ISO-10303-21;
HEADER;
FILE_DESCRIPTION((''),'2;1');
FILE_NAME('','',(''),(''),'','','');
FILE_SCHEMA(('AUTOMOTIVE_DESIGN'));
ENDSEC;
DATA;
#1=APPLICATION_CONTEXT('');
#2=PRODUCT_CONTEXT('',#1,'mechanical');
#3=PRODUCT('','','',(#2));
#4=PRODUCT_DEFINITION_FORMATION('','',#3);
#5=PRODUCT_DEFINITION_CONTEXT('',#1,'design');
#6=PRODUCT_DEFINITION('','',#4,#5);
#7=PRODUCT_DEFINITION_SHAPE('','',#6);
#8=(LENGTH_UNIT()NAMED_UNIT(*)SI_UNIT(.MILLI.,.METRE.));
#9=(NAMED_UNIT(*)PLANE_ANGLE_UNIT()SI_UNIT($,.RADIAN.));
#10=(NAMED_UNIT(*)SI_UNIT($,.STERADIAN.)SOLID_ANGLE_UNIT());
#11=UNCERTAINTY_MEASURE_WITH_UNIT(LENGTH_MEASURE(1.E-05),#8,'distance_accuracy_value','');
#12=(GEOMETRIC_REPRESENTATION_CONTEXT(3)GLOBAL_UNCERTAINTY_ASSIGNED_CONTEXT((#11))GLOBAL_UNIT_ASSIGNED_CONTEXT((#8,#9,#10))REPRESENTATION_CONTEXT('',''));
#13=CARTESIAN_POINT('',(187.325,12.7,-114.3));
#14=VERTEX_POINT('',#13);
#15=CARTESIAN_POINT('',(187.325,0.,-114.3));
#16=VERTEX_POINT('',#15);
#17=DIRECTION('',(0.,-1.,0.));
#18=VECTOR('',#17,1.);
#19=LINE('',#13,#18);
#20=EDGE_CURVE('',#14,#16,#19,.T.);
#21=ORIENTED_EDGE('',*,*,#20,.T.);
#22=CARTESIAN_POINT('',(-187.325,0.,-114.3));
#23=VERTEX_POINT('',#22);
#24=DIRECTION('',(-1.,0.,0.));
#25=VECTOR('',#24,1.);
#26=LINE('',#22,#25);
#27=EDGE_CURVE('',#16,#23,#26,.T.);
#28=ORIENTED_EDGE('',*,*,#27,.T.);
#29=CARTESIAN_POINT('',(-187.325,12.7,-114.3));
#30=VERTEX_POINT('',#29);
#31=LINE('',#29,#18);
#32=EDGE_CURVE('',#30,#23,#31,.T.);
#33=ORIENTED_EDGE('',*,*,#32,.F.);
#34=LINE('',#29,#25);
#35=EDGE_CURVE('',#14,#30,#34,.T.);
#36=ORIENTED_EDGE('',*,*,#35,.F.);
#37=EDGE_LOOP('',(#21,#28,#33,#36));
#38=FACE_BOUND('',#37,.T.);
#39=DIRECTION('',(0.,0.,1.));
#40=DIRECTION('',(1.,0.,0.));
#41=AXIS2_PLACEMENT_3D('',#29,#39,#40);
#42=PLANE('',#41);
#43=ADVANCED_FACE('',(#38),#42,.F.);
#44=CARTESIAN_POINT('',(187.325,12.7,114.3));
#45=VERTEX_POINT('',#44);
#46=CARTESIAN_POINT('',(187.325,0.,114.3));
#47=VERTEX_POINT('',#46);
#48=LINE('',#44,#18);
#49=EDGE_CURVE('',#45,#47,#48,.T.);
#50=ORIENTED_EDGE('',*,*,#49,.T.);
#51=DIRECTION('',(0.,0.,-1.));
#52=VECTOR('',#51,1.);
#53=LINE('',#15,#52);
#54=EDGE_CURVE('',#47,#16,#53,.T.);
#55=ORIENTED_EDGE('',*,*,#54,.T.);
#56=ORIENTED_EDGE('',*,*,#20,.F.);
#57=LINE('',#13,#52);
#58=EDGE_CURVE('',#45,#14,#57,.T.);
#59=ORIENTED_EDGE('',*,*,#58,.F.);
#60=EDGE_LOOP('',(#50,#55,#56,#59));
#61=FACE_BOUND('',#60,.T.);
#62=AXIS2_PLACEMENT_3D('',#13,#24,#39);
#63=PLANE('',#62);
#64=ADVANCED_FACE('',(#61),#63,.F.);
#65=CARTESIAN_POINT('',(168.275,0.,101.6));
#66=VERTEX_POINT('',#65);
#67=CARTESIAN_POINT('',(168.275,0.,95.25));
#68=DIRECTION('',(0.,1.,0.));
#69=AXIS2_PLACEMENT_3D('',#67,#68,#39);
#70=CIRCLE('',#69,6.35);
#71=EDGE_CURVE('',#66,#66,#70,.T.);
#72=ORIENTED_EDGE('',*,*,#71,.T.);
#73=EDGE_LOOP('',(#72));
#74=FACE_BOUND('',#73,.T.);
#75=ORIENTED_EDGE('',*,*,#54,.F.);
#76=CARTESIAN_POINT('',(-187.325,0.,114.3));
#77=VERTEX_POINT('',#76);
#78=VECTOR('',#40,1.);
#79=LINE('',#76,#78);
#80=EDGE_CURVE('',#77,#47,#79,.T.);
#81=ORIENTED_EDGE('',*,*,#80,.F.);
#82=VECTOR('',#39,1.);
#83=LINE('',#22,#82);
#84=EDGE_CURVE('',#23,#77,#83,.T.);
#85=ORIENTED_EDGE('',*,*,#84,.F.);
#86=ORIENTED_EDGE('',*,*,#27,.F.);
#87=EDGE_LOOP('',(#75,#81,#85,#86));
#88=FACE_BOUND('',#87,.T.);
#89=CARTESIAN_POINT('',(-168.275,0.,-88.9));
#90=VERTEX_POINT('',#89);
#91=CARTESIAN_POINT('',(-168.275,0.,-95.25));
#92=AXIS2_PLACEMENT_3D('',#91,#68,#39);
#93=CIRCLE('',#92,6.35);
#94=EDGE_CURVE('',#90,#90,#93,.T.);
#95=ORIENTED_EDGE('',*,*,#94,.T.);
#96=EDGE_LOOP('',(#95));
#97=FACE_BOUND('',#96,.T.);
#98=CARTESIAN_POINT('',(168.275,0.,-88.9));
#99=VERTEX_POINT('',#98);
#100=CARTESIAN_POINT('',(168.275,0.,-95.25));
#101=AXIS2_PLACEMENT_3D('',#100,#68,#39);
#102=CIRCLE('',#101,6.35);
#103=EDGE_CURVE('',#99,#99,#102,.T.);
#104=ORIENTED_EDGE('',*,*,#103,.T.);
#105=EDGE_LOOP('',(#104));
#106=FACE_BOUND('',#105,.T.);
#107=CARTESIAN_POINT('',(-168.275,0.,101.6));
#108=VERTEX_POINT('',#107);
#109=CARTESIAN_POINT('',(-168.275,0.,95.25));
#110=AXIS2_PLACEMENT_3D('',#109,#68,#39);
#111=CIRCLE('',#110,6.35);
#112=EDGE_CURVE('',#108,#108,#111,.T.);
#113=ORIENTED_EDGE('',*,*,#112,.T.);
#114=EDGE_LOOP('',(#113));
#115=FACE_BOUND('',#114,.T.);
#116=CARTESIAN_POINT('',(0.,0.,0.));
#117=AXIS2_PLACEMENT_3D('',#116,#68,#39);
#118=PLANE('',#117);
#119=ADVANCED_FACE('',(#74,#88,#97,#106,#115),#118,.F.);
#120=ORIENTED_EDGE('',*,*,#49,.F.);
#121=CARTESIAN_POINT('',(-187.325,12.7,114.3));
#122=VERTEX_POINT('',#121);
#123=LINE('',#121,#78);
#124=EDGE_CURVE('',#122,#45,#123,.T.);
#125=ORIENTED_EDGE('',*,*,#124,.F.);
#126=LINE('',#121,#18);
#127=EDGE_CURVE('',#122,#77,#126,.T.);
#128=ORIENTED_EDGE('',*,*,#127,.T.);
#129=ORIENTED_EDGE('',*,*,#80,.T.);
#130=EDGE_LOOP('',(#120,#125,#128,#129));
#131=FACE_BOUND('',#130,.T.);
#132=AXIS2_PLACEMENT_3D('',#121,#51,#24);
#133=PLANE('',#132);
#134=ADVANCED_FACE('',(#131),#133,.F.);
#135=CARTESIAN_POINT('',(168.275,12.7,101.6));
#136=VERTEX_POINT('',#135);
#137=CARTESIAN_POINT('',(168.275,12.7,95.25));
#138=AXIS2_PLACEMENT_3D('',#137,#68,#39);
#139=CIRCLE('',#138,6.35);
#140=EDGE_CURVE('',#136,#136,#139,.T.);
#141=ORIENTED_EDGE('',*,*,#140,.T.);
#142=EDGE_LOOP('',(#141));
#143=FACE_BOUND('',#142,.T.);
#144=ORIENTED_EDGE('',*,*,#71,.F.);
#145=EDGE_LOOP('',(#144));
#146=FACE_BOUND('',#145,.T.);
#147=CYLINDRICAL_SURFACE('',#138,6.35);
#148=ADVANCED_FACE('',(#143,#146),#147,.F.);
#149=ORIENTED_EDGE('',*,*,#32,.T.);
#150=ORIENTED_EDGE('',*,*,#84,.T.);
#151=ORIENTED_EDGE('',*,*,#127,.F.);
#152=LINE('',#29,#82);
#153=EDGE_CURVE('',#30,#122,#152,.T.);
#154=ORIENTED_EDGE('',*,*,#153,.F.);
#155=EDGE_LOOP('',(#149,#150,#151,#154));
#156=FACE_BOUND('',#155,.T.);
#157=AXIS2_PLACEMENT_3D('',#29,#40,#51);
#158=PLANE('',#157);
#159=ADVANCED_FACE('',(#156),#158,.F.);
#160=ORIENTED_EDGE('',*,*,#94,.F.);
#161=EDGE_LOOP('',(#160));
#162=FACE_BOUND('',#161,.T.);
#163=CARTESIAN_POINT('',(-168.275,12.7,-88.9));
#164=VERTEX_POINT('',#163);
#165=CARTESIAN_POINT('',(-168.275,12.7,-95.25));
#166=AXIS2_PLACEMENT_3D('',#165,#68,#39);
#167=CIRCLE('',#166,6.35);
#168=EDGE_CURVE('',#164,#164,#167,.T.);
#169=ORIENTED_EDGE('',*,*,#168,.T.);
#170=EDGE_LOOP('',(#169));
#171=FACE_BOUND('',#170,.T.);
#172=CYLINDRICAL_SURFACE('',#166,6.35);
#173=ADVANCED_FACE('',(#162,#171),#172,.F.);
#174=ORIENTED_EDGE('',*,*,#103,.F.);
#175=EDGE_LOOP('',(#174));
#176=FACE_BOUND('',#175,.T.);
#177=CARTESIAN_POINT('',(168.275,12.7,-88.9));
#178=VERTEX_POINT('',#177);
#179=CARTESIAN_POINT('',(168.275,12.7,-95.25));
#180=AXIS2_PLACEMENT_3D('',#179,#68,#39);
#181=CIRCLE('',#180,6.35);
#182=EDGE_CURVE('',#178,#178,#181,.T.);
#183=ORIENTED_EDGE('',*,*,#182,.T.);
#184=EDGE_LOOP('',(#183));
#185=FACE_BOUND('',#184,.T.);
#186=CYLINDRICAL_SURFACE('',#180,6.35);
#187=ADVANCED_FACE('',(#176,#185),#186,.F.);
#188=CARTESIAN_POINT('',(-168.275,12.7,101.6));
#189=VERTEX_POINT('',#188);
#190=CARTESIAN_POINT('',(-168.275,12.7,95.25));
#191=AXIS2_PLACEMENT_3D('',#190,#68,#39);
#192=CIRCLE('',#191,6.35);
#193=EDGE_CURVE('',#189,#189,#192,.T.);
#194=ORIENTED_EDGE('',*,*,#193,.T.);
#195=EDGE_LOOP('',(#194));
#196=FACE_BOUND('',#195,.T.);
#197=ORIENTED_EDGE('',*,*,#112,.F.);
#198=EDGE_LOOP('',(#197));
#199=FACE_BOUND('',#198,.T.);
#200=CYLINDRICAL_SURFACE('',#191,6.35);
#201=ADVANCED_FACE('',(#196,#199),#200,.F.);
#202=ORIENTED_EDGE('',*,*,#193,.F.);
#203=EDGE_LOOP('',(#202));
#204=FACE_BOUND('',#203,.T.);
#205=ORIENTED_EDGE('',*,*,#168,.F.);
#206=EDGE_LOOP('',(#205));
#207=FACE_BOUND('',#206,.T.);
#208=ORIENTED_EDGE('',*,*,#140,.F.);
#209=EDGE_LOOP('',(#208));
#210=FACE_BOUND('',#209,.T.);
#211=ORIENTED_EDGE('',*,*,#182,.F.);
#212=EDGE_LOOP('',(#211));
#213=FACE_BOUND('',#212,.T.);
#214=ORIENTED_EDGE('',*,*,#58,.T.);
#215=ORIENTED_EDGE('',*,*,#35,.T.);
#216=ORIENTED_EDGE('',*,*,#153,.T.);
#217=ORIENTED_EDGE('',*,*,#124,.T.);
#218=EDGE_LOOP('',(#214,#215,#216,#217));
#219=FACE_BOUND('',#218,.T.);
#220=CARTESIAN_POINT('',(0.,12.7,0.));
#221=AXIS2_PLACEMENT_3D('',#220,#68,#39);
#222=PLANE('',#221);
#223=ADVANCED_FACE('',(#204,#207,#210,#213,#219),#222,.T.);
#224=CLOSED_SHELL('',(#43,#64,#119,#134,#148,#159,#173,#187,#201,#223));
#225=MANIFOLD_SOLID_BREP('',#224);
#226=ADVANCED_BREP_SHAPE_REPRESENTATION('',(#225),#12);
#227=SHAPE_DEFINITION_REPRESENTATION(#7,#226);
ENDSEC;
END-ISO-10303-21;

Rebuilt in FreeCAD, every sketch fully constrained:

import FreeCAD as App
import Part
import Sketcher
Q = App.Units.Quantity


def add_polygon(sketch, points):
    """Adds a closed chain of lines whose ends are joined by coincident constraints."""
    first, n = sketch.GeometryCount, len(points)
    for a, b in zip(points, points[1:] + points[:1]):
        sketch.addGeometry(Part.LineSegment(App.Vector(*a, 0), App.Vector(*b, 0)), False)
    for i in range(n):
        sketch.addConstraint(Sketcher.Constraint("Coincident", first + i, 2, first + (i + 1) % n, 1))

doc = App.newDocument("Part")
body = doc.addObject("PartDesign::Body", "Body")

# Sketch on XZ plane
sketch1 = body.newObject("Sketcher::SketchObject", "Sketch")
sketch1.AttachmentSupport = (doc.getObject("XZ_Plane"), [""])
sketch1.MapMode = "FlatFace"
add_polygon(sketch1, [(-187.325, -114.3), (-187.325, 114.3), (187.325, 114.3), (187.325, -114.3)])  # lines 0-3
sketch1.addConstraint(Sketcher.Constraint("Vertical", 0))
sketch1.addConstraint(Sketcher.Constraint("Horizontal", 1))
sketch1.addConstraint(Sketcher.Constraint("Vertical", 2))
sketch1.addConstraint(Sketcher.Constraint("Horizontal", 3))
sketch1.addConstraint(Sketcher.Constraint("Symmetric", 0, 2, 2, 2, -1, 1))
sketch1.addConstraint(Sketcher.Constraint("DistanceY", 0, 1, 0, 2, Q("9 in")))
sketch1.addConstraint(Sketcher.Constraint("DistanceX", 1, 1, 1, 2, Q("14.75 in")))
pad1 = body.newObject("PartDesign::Pad", "Pad")
pad1.Profile = sketch1
pad1.Length = Q("0.5 in")
pad1.Reversed = True

# Sketch on XZ plane
sketch2 = body.newObject("Sketcher::SketchObject", "Sketch001")
sketch2.AttachmentSupport = (doc.getObject("XZ_Plane"), [""])
sketch2.MapMode = "FlatFace"
sketch2.AttachmentOffset = App.Placement(App.Vector(0, 0, -0.5 * 25.4), App.Rotation())
sketch2.addGeometry(Part.Circle(App.Vector(-168.275, -95.25, 0), App.Vector(0, 0, 1), 6.35), False)
sketch2.addGeometry(Part.Circle(App.Vector(-168.275, 95.25, 0), App.Vector(0, 0, 1), 6.35), False)
sketch2.addGeometry(Part.Circle(App.Vector(168.275, 95.25, 0), App.Vector(0, 0, 1), 6.35), False)
sketch2.addGeometry(Part.Circle(App.Vector(168.275, -95.25, 0), App.Vector(0, 0, 1), 6.35), False)
sketch2.addConstraint(Sketcher.Constraint("Equal", 0, 1))
sketch2.addConstraint(Sketcher.Constraint("Equal", 1, 2))
sketch2.addConstraint(Sketcher.Constraint("Equal", 2, 3))
sketch2.addConstraint(Sketcher.Constraint("Symmetric", 0, 3, 2, 3, -1, 1))
sketch2.addConstraint(Sketcher.Constraint("Symmetric", 1, 3, 3, 3, -1, 1))
sketch2.addConstraint(Sketcher.Constraint("Symmetric", 1, 3, 2, 3, -2))
sketch2.addConstraint(Sketcher.Constraint("Diameter", 0, Q("0.5 in")))
sketch2.addConstraint(Sketcher.Constraint("DistanceY", 0, 3, 1, 3, Q("7.5 in")))
sketch2.addConstraint(Sketcher.Constraint("DistanceX", 1, 3, 2, 3, Q("13.25 in")))
doc.recompute()
hole = body.newObject("PartDesign::Hole", "Hole")
hole.Profile = sketch2
hole.ThreadType = "None"
hole.Diameter = Q("0.5 in")
hole.DepthType = "Dimension"
hole.Depth = Q("0.5 in")
hole.DrillPoint = "Angled"
hole.DrillPointAngle = 118
hole.Reversed = True

doc.recompute()
